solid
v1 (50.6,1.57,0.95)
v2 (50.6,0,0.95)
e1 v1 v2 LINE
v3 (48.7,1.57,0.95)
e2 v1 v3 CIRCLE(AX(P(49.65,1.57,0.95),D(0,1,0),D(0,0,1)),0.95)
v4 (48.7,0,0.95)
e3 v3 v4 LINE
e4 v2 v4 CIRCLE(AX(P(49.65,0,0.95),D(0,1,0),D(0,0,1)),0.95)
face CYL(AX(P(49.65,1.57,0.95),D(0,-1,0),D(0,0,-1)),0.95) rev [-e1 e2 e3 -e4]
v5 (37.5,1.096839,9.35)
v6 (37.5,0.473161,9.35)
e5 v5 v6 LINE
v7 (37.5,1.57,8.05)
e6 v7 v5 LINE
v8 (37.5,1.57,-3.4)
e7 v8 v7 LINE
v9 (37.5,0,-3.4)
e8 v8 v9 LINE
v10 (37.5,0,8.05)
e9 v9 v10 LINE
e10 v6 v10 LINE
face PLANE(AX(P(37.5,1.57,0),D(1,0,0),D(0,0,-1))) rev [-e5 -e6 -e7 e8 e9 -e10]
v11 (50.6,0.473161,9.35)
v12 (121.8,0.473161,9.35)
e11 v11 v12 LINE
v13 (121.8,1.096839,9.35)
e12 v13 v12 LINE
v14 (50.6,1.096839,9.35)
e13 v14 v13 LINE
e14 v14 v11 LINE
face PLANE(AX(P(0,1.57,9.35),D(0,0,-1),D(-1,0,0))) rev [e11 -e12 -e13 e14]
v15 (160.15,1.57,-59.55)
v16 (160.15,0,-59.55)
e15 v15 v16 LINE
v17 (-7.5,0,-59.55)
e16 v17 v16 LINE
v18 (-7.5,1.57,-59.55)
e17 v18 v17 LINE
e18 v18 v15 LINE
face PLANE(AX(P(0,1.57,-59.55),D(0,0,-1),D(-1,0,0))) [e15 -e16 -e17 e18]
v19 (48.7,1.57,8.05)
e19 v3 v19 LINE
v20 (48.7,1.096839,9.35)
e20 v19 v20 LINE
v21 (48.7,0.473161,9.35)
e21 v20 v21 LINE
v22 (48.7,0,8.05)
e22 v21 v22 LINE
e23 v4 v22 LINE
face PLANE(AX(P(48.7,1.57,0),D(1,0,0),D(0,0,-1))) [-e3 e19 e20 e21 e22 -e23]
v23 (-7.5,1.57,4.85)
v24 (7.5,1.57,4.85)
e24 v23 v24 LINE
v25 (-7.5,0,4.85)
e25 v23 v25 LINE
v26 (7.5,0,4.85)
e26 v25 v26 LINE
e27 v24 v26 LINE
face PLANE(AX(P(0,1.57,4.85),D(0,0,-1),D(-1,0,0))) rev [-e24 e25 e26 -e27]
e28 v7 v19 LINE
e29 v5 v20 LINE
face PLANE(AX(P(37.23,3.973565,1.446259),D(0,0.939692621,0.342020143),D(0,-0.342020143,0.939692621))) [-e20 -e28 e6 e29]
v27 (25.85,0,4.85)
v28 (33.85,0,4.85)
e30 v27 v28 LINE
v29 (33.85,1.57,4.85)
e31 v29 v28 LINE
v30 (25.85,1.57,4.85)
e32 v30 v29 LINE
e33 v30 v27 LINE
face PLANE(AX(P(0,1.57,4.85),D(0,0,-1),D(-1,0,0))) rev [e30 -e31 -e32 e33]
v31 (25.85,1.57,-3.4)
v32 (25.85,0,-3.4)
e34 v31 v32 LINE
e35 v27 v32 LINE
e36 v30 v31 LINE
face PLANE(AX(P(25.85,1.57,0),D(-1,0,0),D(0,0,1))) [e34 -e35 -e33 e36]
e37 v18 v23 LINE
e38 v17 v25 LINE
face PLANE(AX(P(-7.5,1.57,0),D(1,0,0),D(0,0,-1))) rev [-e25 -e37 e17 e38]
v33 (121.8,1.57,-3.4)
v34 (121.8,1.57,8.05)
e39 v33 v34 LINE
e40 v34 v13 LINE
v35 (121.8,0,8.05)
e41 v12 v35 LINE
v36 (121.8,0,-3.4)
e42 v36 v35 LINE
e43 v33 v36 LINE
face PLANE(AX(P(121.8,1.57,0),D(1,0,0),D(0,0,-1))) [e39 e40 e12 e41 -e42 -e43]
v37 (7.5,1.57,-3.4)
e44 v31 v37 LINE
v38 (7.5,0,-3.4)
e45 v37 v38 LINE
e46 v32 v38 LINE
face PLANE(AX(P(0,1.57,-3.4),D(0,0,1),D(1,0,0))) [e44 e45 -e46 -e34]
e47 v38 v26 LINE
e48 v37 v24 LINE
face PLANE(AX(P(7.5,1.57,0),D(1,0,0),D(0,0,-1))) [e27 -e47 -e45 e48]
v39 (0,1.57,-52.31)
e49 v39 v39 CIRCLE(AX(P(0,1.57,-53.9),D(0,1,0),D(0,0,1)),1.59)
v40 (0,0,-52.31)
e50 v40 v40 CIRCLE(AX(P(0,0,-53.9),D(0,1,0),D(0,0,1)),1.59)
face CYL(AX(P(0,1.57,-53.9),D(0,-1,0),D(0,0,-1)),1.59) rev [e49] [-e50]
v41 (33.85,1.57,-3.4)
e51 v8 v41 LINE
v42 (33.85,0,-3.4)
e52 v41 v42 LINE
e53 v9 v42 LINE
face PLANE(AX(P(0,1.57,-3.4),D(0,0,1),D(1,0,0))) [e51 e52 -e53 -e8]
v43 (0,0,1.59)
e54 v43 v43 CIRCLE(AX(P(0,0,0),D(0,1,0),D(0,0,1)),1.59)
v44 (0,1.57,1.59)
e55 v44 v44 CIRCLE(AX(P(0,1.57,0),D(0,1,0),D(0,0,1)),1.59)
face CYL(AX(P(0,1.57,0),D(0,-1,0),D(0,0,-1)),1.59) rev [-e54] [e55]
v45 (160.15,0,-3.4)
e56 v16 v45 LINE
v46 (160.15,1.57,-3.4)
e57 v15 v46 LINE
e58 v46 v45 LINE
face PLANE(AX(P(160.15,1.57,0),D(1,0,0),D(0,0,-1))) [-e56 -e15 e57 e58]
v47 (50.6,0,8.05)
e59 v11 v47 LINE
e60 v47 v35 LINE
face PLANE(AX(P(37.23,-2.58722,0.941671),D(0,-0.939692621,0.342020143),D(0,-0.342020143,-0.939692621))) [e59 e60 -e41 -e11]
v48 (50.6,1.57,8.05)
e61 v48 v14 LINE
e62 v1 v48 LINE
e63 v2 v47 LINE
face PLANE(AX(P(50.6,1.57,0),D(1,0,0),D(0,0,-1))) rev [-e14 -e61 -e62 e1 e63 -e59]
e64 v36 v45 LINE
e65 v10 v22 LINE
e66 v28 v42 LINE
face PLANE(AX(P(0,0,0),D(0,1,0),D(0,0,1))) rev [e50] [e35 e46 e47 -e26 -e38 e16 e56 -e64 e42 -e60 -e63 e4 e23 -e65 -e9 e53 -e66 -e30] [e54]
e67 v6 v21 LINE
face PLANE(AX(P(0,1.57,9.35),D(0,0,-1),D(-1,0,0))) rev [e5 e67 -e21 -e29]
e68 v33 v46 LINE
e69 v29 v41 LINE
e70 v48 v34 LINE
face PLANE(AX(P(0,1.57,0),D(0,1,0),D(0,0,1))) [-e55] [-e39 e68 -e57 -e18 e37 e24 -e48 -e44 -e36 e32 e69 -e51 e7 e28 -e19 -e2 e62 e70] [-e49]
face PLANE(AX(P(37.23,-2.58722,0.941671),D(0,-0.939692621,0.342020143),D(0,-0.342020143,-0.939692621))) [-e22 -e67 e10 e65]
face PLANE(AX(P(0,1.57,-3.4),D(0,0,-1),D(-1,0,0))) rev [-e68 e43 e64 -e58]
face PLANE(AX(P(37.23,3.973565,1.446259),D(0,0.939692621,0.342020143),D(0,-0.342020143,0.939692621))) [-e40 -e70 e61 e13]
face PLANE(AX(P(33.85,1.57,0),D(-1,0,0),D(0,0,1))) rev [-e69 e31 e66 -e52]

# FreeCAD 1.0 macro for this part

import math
import FreeCAD as App
import Part
import Sketcher
Q = App.Units.Quantity


def add_polygon(sketch, points):
    """Adds a closed chain of lines whose ends are joined by coincident constraints."""
    first, n = sketch.GeometryCount, len(points)
    for a, b in zip(points, points[1:] + points[:1]):
        sketch.addGeometry(Part.LineSegment(App.Vector(*a, 0), App.Vector(*b, 0)), False)
    for i in range(n):
        sketch.addConstraint(Sketcher.Constraint("Coincident", first + i, 2, first + (i + 1) % n, 1))

doc = App.newDocument("Part")
body = doc.addObject("PartDesign::Body", "Body")

sketch1 = body.newObject("Sketcher::SketchObject", "Sketch")
sketch1.AttachmentSupport = (doc.getObject("XZ_Plane"), [""])
sketch1.MapMode = "FlatFace"
sketch1.addGeometry([
    Part.ArcOfCircle(Part.Circle(App.Vector(49.65, 0.95, 0), App.Vector(0, 0, 1), 0.95), math.radians(180), math.radians(360)),
    Part.LineSegment(App.Vector(50.6, 0.95, 0), App.Vector(50.6, 9.35, 0)),
    Part.LineSegment(App.Vector(50.6, 9.35, 0), App.Vector(121.8, 9.35, 0)),
    Part.LineSegment(App.Vector(121.8, 9.35, 0), App.Vector(121.8, -3.4, 0)),
    Part.LineSegment(App.Vector(121.8, -3.4, 0), App.Vector(160.15, -3.4, 0)),
    Part.LineSegment(App.Vector(160.15, -3.4, 0), App.Vector(160.15, -59.55, 0)),
    Part.LineSegment(App.Vector(160.15, -59.55, 0), App.Vector(-7.5, -59.55, 0)),
    Part.LineSegment(App.Vector(-7.5, -59.55, 0), App.Vector(-7.5, 4.85, 0)),
    Part.LineSegment(App.Vector(-7.5, 4.85, 0), App.Vector(7.5, 4.85, 0)),
    Part.LineSegment(App.Vector(7.5, 4.85, 0), App.Vector(7.5, -3.4, 0)),
    Part.LineSegment(App.Vector(7.5, -3.4, 0), App.Vector(25.85, -3.4, 0)),
    Part.LineSegment(App.Vector(25.85, -3.4, 0), App.Vector(25.85, 4.85, 0)),
    Part.LineSegment(App.Vector(25.85, 4.85, 0), App.Vector(33.85, 4.85, 0)),
    Part.LineSegment(App.Vector(33.85, 4.85, 0), App.Vector(33.85, -3.4, 0)),
    Part.LineSegment(App.Vector(33.85, -3.4, 0), App.Vector(37.5, -3.4, 0)),
    Part.LineSegment(App.Vector(37.5, -3.4, 0), App.Vector(37.5, 9.35, 0)),
    Part.LineSegment(App.Vector(37.5, 9.35, 0), App.Vector(48.7, 9.35, 0)),
    Part.LineSegment(App.Vector(48.7, 9.35, 0), App.Vector(48.7, 0.95, 0)),
    Part.Circle(App.Vector(0, 0, 0), App.Vector(0, 0, 1), 1.59),
    Part.Circle(App.Vector(0, -53.9, 0), App.Vector(0, 0, 1), 1.59),
], False)
sketch1.addConstraint([
    Sketcher.Constraint("Tangent", 0, 2, 1, 1),
    Sketcher.Constraint("Coincident", 1, 2, 2, 1),
    Sketcher.Constraint("Coincident", 2, 2, 3, 1),
    Sketcher.Constraint("Coincident", 3, 2, 4, 1),
    Sketcher.Constraint("Coincident", 4, 2, 5, 1),
    Sketcher.Constraint("Coincident", 5, 2, 6, 1),
    Sketcher.Constraint("Coincident", 6, 2, 7, 1),
    Sketcher.Constraint("Coincident", 7, 2, 8, 1),
    Sketcher.Constraint("Coincident", 8, 2, 9, 1),
    Sketcher.Constraint("Coincident", 9, 2, 10, 1),
    Sketcher.Constraint("Coincident", 10, 2, 11, 1),
    Sketcher.Constraint("Coincident", 11, 2, 12, 1),
    Sketcher.Constraint("Coincident", 12, 2, 13, 1),
    Sketcher.Constraint("Coincident", 13, 2, 14, 1),
    Sketcher.Constraint("Coincident", 14, 2, 15, 1),
    Sketcher.Constraint("Coincident", 15, 2, 16, 1),
    Sketcher.Constraint("Coincident", 16, 2, 17, 1),
    Sketcher.Constraint("Tangent", 17, 2, 0, 1),
    Sketcher.Constraint("Vertical", 1),
    Sketcher.Constraint("Horizontal", 2),
    Sketcher.Constraint("Vertical", 3),
    Sketcher.Constraint("Horizontal", 4),
    Sketcher.Constraint("Vertical", 5),
    Sketcher.Constraint("Horizontal", 6),
    Sketcher.Constraint("Vertical", 7),
    Sketcher.Constraint("Horizontal", 8),
    Sketcher.Constraint("Vertical", 9),
    Sketcher.Constraint("Horizontal", 10),
    Sketcher.Constraint("Vertical", 11),
    Sketcher.Constraint("Horizontal", 12),
    Sketcher.Constraint("Vertical", 13),
    Sketcher.Constraint("Horizontal", 14),
    Sketcher.Constraint("Vertical", 15),
    Sketcher.Constraint("Horizontal", 16),
    Sketcher.Constraint("Vertical", 17),
    Sketcher.Constraint("Coincident", 18, 3, -1, 1),
    Sketcher.Constraint("Equal", 18, 19),
    Sketcher.Constraint("PointOnObject", 19, 3, -2),
    Sketcher.Constraint("Horizontal", 4, 2, 9, 2),
    Sketcher.Constraint("Horizontal", 8, 2, 11, 2),
    Sketcher.Constraint("Horizontal", 10, 2, 13, 2),
    Sketcher.Constraint("Horizontal", 2, 2, 15, 2),
    Sketcher.Constraint("Diameter", 18, 3.18),
    Sketcher.Constraint("DistanceX", 8, 1, 8, 2, 15.0),
    Sketcher.Constraint("DistanceX", 12, 1, 12, 2, 8.0),
    Sketcher.Constraint("Radius", 0, 0.95),
    Sketcher.Constraint("DistanceX", 2, 1, 2, 2, 71.2),
    Sketcher.Constraint("DistanceX", 16, 1, 16, 2, 11.2),
    Sketcher.Constraint("DistanceY", 1, 1, 1, 2, 8.4),
    Sketcher.Constraint("DistanceY", 7, 1, 7, 2, 64.4),
    Sketcher.Constraint("DistanceX", 4, 1, 4, 2, 38.35),
    Sketcher.Constraint("DistanceX", 6, 2, 6, 1, 167.65),
    Sketcher.Constraint("DistanceX", 10, 1, 10, 2, 18.35),
    Sketcher.Constraint("DistanceY", 3, 2, 3, 1, 12.75),
    Sketcher.Constraint("DistanceY", 5, 2, 5, 1, 56.15),
    Sketcher.Constraint("DistanceY", 19, 3, -1, 1, 53.9),
    Sketcher.Constraint("DistanceX", -1, 1, 0, 2, 50.6),
    Sketcher.Constraint("DistanceY", 3, 2, -1, 1, 3.4),
])
pad1 = body.newObject("PartDesign::Pad", "Pad")
pad1.Profile = sketch1
pad1.Length = 1.57
pad1.Reversed = True

sketch2 = body.newObject("Sketcher::SketchObject", "Sketch001")
sketch2.AttachmentSupport = (doc.getObject("YZ_Plane"), [""])
sketch2.MapMode = "FlatFace"
sketch2.AttachmentOffset = App.Placement(App.Vector(0, 0, 121.8), App.Rotation())
add_polygon(sketch2, [(1.096839, 9.35), (1.57, 8.05), (1.57, 9.35)])
add_polygon(sketch2, [(0, 8.05), (0.473161, 9.35), (0, 9.35)])
sketch2.addConstraint([
    Sketcher.Constraint("Vertical", 1),
    Sketcher.Constraint("Horizontal", 2),
    Sketcher.Constraint("Horizontal", 4),
    Sketcher.Constraint("Vertical", 5),
    Sketcher.Constraint("PointOnObject", 4, 2, -2),
    Sketcher.Constraint("Horizontal", 2, 2, 3, 2),
    Sketcher.Constraint("Horizontal", 0, 2, 5, 2),
    Sketcher.Constraint("Equal", 2, 4),
    Sketcher.Constraint("Angle", 0, Q("-70 deg")),
    Sketcher.Constraint("DistanceY", 1, 1, 1, 2, 1.3),
    Sketcher.Constraint("DistanceX", -1, 1, 0, 2, 1.57),
    Sketcher.Constraint("DistanceY", -1, 1, 0, 2, 8.05),
])
pocket1 = body.newObject("PartDesign::Pocket", "Pocket")
pocket1.Profile = sketch2
pocket1.Length = 84.57

doc.recompute()
